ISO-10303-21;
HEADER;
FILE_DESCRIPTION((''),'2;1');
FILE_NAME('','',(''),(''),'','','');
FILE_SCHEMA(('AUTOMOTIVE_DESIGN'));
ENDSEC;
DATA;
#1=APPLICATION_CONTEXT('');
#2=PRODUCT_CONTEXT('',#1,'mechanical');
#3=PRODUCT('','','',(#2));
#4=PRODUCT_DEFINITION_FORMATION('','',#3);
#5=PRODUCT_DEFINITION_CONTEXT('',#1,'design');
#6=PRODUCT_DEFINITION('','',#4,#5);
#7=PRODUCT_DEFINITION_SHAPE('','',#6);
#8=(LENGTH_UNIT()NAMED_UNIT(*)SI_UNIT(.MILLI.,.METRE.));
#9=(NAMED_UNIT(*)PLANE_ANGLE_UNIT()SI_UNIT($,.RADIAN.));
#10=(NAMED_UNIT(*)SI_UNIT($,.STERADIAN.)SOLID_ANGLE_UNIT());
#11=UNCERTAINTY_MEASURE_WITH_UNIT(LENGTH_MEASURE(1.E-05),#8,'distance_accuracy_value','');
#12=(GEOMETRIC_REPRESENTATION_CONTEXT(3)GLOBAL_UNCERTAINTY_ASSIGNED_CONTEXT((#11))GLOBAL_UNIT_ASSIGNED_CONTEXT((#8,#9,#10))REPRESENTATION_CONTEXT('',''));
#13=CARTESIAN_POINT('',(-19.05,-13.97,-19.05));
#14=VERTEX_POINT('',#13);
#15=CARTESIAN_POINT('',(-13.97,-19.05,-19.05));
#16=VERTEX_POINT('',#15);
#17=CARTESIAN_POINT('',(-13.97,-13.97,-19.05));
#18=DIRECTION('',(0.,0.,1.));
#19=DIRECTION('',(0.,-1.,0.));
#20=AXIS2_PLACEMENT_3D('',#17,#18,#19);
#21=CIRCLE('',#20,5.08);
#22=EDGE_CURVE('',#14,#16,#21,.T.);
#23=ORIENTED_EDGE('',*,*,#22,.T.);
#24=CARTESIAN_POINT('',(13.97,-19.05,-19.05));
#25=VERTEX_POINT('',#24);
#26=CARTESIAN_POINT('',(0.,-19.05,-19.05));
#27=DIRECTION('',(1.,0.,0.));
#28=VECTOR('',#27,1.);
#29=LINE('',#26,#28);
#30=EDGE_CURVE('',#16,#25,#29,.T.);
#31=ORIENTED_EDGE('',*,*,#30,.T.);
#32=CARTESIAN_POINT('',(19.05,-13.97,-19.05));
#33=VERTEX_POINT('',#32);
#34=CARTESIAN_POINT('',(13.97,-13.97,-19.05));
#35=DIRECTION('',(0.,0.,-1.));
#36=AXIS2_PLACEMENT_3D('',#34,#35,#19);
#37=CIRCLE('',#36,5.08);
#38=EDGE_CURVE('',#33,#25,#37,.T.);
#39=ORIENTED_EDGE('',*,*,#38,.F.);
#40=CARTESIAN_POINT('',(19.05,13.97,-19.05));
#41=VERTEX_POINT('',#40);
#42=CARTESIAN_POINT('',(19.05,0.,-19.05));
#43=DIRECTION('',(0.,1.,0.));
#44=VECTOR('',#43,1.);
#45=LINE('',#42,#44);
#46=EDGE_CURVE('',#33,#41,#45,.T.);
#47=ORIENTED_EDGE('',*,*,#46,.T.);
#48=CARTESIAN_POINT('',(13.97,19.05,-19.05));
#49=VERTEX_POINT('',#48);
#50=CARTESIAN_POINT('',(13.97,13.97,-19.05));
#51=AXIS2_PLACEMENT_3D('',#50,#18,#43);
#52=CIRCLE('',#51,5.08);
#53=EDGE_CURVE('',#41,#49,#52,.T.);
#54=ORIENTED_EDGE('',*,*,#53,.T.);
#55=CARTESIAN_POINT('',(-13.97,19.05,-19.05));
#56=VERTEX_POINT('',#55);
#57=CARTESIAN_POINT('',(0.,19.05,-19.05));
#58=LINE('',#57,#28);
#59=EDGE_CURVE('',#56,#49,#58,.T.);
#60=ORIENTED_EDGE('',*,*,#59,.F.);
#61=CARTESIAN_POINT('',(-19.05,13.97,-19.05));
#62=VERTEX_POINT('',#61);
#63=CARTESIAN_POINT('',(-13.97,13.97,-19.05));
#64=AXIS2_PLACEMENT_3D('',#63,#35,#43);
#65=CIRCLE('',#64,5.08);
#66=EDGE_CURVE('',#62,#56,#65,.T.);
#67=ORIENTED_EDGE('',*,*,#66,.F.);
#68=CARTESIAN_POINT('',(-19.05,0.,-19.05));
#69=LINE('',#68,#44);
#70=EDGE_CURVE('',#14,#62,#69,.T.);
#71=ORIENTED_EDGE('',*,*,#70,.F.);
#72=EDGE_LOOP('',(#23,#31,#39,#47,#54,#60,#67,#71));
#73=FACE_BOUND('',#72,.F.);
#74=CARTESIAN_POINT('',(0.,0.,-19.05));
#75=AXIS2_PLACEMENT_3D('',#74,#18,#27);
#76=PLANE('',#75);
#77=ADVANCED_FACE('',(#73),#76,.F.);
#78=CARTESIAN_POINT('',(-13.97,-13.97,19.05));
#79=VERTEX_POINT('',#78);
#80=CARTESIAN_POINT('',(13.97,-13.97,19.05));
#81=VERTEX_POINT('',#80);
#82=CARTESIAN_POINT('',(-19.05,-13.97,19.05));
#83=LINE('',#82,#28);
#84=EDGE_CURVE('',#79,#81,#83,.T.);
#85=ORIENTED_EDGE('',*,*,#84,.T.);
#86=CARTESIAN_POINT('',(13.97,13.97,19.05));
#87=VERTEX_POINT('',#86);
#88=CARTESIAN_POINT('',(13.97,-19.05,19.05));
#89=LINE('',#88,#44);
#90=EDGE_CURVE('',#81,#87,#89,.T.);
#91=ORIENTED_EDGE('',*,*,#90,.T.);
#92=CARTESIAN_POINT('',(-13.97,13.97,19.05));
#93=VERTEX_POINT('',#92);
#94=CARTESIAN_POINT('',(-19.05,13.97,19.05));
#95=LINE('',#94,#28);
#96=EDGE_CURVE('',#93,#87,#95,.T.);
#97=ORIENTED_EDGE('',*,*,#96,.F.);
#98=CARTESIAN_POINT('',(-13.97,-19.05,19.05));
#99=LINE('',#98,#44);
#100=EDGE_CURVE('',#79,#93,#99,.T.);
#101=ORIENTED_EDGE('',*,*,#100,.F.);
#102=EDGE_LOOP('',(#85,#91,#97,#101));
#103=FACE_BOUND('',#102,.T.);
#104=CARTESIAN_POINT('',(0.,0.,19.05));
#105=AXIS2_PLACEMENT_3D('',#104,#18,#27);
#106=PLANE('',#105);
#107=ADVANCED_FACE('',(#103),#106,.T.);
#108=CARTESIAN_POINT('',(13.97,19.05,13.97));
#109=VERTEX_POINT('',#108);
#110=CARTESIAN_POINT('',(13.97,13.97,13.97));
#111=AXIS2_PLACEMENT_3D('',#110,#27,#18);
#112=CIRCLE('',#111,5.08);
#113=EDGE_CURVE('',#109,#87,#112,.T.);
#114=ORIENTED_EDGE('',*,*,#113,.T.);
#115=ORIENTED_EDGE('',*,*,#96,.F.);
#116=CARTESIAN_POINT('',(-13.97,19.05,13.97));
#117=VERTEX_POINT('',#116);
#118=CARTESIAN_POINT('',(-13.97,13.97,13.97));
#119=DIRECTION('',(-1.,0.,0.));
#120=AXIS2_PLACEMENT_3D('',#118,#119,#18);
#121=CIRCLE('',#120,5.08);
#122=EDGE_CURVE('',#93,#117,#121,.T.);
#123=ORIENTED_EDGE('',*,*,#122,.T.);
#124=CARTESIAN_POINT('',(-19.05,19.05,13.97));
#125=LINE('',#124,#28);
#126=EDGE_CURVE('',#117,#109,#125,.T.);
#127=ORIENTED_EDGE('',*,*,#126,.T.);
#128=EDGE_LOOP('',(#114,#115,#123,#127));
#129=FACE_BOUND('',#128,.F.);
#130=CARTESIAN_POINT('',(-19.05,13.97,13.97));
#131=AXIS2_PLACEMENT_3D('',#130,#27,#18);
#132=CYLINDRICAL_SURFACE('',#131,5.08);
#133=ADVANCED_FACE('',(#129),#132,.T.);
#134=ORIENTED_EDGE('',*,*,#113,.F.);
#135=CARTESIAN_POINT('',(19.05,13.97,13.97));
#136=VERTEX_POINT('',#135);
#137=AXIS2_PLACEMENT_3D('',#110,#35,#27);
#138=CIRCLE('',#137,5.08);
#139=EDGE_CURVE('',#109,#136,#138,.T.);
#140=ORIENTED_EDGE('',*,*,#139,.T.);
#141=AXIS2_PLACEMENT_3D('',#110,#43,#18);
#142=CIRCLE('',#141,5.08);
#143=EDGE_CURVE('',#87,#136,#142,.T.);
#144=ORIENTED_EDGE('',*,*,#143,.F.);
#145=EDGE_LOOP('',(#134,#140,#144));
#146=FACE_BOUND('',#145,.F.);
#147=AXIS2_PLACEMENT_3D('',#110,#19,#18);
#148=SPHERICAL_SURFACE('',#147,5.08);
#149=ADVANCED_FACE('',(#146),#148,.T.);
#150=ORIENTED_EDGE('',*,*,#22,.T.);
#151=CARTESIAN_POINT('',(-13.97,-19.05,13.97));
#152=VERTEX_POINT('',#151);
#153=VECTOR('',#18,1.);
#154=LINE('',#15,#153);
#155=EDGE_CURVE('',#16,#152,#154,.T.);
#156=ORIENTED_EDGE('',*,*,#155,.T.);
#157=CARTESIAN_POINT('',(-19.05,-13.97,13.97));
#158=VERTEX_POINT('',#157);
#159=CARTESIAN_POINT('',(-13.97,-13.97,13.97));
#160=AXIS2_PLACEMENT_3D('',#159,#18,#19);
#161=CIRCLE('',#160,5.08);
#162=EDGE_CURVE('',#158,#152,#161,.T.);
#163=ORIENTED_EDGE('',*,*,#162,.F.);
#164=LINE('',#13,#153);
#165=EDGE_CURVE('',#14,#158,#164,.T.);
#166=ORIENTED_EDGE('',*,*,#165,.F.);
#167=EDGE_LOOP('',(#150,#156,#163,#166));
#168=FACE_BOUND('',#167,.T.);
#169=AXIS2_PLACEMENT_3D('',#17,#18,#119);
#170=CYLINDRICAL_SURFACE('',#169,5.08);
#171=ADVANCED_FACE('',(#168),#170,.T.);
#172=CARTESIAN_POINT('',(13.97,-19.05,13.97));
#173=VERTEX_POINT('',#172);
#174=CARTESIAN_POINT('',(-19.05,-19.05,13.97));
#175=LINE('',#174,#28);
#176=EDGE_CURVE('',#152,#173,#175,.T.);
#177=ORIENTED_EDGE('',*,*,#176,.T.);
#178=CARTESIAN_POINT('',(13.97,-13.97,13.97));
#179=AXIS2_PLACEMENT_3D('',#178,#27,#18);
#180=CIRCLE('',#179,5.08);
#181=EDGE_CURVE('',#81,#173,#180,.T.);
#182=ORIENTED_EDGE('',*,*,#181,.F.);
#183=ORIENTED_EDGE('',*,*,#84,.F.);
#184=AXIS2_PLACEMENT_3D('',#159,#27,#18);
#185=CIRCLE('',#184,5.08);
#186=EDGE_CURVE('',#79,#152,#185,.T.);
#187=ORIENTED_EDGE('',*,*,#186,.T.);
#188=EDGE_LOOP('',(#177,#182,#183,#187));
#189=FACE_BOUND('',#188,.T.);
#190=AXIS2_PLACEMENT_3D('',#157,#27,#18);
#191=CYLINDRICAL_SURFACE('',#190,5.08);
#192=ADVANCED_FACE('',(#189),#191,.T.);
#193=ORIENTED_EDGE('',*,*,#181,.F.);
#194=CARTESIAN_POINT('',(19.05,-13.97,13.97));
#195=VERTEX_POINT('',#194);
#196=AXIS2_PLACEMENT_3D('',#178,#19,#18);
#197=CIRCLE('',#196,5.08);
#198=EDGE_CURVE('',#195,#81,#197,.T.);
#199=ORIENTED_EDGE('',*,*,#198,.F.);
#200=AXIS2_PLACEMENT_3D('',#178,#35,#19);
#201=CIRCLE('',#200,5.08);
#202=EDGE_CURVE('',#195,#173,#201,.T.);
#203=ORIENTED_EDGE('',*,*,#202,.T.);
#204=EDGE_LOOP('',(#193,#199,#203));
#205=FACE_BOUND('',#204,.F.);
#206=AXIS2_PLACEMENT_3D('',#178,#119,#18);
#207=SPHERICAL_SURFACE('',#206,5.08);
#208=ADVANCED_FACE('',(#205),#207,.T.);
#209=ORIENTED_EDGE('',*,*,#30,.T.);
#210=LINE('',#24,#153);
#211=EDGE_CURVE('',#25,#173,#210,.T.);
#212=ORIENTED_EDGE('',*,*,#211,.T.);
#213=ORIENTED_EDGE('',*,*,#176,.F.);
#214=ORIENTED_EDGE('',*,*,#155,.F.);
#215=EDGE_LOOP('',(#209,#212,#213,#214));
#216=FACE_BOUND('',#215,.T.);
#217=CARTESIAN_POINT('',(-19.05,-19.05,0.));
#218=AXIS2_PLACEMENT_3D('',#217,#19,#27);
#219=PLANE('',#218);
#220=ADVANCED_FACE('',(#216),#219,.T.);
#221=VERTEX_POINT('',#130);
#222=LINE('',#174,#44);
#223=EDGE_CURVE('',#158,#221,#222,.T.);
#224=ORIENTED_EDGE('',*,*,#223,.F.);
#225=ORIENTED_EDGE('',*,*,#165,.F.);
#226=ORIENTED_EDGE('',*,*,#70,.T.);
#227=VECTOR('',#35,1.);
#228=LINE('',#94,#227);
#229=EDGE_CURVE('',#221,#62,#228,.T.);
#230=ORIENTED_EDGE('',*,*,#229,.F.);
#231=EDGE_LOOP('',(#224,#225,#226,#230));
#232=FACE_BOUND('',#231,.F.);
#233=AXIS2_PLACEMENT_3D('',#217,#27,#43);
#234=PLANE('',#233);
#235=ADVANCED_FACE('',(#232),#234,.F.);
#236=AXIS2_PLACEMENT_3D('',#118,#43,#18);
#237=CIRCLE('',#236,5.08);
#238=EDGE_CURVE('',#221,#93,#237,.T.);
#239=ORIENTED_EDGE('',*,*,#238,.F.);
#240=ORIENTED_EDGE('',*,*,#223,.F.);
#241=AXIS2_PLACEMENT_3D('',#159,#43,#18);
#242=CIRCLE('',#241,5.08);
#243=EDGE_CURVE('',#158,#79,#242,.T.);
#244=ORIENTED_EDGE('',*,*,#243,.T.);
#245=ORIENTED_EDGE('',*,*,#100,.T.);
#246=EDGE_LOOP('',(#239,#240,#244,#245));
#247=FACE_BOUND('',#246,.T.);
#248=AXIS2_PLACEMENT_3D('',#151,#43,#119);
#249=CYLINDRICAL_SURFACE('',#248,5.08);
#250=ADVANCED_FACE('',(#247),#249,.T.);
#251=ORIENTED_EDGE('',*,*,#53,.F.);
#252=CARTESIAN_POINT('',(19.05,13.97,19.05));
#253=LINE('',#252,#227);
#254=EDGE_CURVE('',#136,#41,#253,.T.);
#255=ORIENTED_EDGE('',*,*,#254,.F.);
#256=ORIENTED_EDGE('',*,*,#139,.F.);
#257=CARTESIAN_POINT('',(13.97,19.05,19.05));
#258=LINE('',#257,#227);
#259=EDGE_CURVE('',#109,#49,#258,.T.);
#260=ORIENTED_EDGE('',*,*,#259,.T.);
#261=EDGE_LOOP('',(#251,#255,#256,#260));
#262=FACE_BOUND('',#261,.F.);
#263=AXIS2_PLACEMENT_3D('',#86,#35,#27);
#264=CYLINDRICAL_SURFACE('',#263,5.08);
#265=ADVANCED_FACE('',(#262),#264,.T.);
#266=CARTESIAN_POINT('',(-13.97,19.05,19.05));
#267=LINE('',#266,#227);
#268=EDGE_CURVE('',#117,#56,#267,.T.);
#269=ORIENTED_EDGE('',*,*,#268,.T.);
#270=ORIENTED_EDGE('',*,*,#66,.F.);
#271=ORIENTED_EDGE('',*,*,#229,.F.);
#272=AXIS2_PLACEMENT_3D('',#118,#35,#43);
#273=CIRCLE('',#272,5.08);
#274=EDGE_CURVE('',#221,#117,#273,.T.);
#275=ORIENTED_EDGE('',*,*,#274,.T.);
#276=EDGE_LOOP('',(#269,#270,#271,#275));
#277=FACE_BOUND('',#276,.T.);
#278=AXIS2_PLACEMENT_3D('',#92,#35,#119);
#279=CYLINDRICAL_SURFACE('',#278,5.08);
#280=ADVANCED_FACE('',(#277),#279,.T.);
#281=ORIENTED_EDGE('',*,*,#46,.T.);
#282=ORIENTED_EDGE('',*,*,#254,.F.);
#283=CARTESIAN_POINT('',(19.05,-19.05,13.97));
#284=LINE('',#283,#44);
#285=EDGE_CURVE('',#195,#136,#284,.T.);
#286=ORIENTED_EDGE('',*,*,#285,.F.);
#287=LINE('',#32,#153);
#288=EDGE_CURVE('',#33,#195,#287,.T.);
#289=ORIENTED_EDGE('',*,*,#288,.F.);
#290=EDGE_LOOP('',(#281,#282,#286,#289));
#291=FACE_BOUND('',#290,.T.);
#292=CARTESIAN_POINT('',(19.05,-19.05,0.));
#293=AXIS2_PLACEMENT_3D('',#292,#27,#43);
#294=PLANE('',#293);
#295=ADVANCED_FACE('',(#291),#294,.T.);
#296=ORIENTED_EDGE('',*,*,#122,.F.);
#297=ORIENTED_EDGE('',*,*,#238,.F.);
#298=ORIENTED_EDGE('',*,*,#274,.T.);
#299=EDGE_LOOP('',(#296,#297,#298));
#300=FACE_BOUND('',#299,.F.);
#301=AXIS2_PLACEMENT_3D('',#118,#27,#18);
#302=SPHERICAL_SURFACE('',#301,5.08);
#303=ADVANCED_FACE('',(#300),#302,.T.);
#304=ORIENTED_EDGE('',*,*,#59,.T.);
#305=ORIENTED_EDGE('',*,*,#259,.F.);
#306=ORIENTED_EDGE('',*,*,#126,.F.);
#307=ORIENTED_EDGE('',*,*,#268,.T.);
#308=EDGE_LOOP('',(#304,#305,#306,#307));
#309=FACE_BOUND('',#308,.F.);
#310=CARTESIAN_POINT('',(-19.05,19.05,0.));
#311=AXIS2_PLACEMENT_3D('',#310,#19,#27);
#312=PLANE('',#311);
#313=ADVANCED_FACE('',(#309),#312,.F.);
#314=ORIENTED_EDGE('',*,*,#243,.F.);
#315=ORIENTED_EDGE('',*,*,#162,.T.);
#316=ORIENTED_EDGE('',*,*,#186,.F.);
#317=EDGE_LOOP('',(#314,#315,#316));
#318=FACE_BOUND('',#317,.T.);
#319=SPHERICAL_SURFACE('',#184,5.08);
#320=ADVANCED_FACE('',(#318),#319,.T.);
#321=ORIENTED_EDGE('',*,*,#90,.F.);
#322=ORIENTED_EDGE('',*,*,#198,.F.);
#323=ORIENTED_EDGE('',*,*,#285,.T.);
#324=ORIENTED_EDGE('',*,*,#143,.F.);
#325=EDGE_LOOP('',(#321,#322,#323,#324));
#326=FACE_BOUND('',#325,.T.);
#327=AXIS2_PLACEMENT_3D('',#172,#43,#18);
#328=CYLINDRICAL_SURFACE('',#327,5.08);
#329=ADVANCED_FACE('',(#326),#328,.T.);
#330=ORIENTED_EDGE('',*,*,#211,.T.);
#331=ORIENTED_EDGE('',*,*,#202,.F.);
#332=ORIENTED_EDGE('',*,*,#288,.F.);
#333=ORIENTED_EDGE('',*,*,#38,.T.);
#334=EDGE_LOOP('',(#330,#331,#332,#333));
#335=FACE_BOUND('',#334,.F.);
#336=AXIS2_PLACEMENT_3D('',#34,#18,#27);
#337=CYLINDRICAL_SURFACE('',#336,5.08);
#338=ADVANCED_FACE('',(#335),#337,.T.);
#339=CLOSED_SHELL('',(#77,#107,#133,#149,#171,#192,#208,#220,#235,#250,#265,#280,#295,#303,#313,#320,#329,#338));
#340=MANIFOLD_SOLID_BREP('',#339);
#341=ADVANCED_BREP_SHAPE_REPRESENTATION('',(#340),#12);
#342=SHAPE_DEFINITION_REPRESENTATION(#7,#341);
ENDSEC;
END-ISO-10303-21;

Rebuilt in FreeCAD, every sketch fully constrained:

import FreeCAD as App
import Part
import Sketcher

V = App.Vector
Q = App.Units.Quantity


def edges_at(feature, points):
    """Names of the edges that pass closest to the given points."""
    edges = feature.Shape.Edges
    near = lambda p: min(range(len(edges)), key=lambda i: edges[i].distToShape(Part.Vertex(*p))[0])
    return sorted({f"Edge{near(p) + 1}" for p in points})


def add_polygon(sketch, points):
    """Adds a closed chain of lines whose ends are joined by coincident constraints."""
    first, n = sketch.GeometryCount, len(points)
    for a, b in zip(points, points[1:] + points[:1]):
        sketch.addGeometry(Part.LineSegment(App.Vector(*a, 0), App.Vector(*b, 0)), False)
    for i in range(n):
        sketch.addConstraint(Sketcher.Constraint("Coincident", first + i, 2, first + (i + 1) % n, 1))

doc = App.newDocument("Part")
params = doc.addObject("Spreadsheet::Sheet", "Params")
for row, (alias, value) in enumerate([
    ("sketch1_width", "1.5 in"),
    ("pad1_length", "1.5 in"),
    ("fillet_radius", "0.2 in"),
], start=1):
    params.set(f"A{row}", alias)
    params.set(f"B{row}", "=" + value)
    params.setAlias(f"B{row}", alias)

body = doc.addObject("PartDesign::Body", "Body")

# Sketch on XY plane
sketch1 = body.newObject("Sketcher::SketchObject", "Sketch")
sketch1.AttachmentSupport = (doc.getObject("XY_Plane"), [""])
sketch1.MapMode = "FlatFace"
add_polygon(sketch1, [(-19, 19), (-19, -19), (19, -19), (19, 19)])  # lines 0-3
sketch1.addConstraint([
    Sketcher.Constraint("Vertical", 0),
    Sketcher.Constraint("Horizontal", 1),
    Sketcher.Constraint("Vertical", 2),
    Sketcher.Constraint("Horizontal", 3),
    Sketcher.Constraint("Symmetric", 0, 2, 2, 2, -1, 1),
    Sketcher.Constraint("Equal", 3, 0),
    Sketcher.Constraint("DistanceX", 1, 1, 1, 2, Q("1.5 in")),
])
sketch1.setExpression("Constraints[10]", "Params.sketch1_width")
pad1 = body.newObject("PartDesign::Pad", "Pad")
pad1.Profile = sketch1
pad1.setExpression("Length", "Params.pad1_length")
pad1.Midplane = True
doc.recompute()

fillet = body.newObject("PartDesign::Fillet", "Fillet")
fillet.Base = (pad1, edges_at(pad1, [
    (0, -19.05, 19.05),
    (19.05, 0, 19.05),
    (0, 19.05, 19.05),
    (-19.05, 0, 19.05),
    (19.05, -19.05, 0),
    (-19.05, -19.05, 0),
    (19.05, 19.05, 0),
    (-19.05, 19.05, 0),
]))
fillet.setExpression("Radius", "Params.fillet_radius")

doc.recompute()
